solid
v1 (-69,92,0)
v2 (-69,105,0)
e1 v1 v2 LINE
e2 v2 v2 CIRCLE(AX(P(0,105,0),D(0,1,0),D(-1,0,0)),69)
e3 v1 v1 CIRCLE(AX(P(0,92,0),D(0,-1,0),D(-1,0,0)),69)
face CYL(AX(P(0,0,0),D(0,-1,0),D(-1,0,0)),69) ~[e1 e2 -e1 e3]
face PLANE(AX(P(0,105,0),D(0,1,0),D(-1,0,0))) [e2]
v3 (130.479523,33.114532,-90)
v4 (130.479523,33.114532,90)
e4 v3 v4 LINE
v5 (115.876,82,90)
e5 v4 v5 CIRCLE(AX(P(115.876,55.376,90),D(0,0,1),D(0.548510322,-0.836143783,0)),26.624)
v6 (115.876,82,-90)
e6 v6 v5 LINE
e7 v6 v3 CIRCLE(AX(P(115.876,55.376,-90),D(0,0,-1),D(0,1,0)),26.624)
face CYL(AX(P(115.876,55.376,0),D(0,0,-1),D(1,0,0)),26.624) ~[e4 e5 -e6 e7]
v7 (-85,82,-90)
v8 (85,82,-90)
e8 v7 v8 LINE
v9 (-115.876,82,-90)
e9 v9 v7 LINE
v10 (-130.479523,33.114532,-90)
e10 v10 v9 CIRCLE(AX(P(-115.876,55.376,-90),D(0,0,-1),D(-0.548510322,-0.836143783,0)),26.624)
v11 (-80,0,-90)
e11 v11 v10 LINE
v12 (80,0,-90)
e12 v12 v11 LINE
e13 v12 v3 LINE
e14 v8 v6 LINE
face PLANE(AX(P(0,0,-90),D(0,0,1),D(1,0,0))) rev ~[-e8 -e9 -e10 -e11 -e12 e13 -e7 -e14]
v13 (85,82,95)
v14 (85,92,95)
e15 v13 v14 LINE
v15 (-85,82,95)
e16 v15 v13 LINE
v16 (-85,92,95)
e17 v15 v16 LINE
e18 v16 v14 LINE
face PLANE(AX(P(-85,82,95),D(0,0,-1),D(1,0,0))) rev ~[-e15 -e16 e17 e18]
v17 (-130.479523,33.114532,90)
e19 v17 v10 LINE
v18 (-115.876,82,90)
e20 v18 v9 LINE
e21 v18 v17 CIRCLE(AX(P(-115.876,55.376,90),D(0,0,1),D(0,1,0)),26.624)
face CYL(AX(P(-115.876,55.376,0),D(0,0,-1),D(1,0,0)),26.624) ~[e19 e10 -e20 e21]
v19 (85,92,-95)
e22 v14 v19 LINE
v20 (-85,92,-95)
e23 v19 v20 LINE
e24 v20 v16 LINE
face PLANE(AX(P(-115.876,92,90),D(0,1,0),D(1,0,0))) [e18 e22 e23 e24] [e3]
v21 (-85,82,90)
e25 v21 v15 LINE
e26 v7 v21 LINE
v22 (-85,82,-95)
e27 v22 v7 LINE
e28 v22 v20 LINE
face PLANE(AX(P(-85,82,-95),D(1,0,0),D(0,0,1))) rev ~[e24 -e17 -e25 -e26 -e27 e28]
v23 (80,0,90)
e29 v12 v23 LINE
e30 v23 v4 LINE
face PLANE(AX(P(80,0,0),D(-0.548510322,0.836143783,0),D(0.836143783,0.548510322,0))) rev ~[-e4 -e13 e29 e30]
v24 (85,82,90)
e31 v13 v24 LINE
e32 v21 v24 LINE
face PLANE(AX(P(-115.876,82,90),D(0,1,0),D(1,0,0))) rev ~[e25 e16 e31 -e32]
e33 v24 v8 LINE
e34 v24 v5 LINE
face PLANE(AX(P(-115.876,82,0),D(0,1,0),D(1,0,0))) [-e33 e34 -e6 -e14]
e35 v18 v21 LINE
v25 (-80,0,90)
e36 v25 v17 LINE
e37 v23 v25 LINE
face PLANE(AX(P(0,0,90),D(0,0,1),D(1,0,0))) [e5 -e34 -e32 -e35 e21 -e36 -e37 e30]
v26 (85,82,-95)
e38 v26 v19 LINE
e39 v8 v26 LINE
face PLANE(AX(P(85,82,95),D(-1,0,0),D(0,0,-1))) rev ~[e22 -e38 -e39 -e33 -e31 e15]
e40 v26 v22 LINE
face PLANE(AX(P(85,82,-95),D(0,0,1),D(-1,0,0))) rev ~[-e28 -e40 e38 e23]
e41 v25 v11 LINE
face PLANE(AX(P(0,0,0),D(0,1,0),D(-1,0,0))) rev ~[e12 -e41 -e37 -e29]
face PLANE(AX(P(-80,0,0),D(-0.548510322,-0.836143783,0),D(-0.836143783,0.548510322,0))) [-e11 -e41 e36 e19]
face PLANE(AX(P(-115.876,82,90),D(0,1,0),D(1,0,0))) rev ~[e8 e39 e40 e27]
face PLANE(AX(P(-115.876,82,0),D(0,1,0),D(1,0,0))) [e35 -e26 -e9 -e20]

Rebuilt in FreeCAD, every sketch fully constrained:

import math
import FreeCAD as App
import Part
import Sketcher
Q = App.Units.Quantity


def add_polygon(sketch, points):
    """Adds a closed chain of lines whose ends are joined by coincident constraints."""
    first, n = sketch.GeometryCount, len(points)
    for a, b in zip(points, points[1:] + points[:1]):
        sketch.addGeometry(Part.LineSegment(App.Vector(*a, 0), App.Vector(*b, 0)), False)
    for i in range(n):
        sketch.addConstraint(Sketcher.Constraint("Coincident", first + i, 2, first + (i + 1) % n, 1))

doc = App.newDocument("Part")
body = doc.addObject("PartDesign::Body", "Body")

# Sketch on XY plane
sketch1 = doc.addObject("Sketcher::SketchObject", "Sketch")
body.addObject(sketch1)
sketch1.AttachmentSupport = (doc.XY_Plane, [""])
sketch1.MapMode = "FlatFace"
sketch1.addGeometry([
    Part.LineSegment(App.Vector(-80, 0, 0), App.Vector(80, 0, 0)),  # 0
    Part.LineSegment(App.Vector(80, 0, 0), App.Vector(130, 33, 0)),  # 1
    Part.ArcOfCircle(Part.Circle(App.Vector(116, 55, 0), App.Vector(0, 0, 1), 27), math.radians(-57), math.radians(90)),  # 2
    Part.LineSegment(App.Vector(116, 82, 0), App.Vector(-116, 82, 0)),  # 3
    Part.ArcOfCircle(Part.Circle(App.Vector(-116, 55, 0), App.Vector(0, 0, 1), 27), math.radians(90), math.radians(237)),  # 4
    Part.LineSegment(App.Vector(-130, 33, 0), App.Vector(-80, 0, 0)),  # 5
], False)
sketch1.addConstraint([
    Sketcher.Constraint("Coincident", 0, 2, 1, 1),
    Sketcher.Constraint("Tangent", 1, 2, 2, 1),
    Sketcher.Constraint("Tangent", 2, 2, 3, 1),
    Sketcher.Constraint("Tangent", 3, 2, 4, 1),
    Sketcher.Constraint("Tangent", 4, 2, 5, 1),
    Sketcher.Constraint("Coincident", 5, 2, 0, 1),
    Sketcher.Constraint("Horizontal", 0),
    Sketcher.Constraint("Horizontal", 3),
    Sketcher.Constraint("Equal", 2, 4),
    Sketcher.Constraint("Symmetric", 0, 2, 5, 2, -1, 1),
    Sketcher.Constraint("Horizontal", 1, 2, 4, 2),
    Sketcher.Constraint("DistanceX", -1, 1, 0, 2, Q("80 mm")),
    Sketcher.Constraint("DistanceY", -1, 1, 2, 2, Q("82 mm")),
    Sketcher.Constraint("Radius", 2, Q("26.624 mm")),
    Sketcher.Constraint("DistanceX", 3, 2, 3, 1, Q("231.752 mm")),
])
pad1 = doc.addObject("PartDesign::Pad", "Pad")
body.addObject(pad1)
pad1.Profile = sketch1
pad1.Length = 180
pad1.Midplane = True

# Sketch on XZ plane
sketch2 = doc.addObject("Sketcher::SketchObject", "Sketch001")
body.addObject(sketch2)
sketch2.AttachmentSupport = (doc.XZ_Plane, [""])
sketch2.MapMode = "FlatFace"
sketch2.AttachmentOffset = App.Placement(App.Vector(0, 0, -82), App.Rotation())
add_polygon(sketch2, [(-85, -95), (-85, 95), (85, 95), (85, -95)])  # lines 0-3
sketch2.addConstraint([
    Sketcher.Constraint("Vertical", 0),
    Sketcher.Constraint("Horizontal", 1),
    Sketcher.Constraint("Vertical", 2),
    Sketcher.Constraint("Horizontal", 3),
    Sketcher.Constraint("Symmetric", 0, 2, 2, 2, -1, 1),
    Sketcher.Constraint("DistanceX", 1, 1, 1, 2, Q("170 mm")),
    Sketcher.Constraint("DistanceY", 0, 1, 0, 2, Q("190 mm")),
])
pad2 = doc.addObject("PartDesign::Pad", "Pad001")
body.addObject(pad2)
pad2.Profile = sketch2
pad2.Length = 10
pad2.Reversed = True

# Sketch on XZ plane
sketch3 = doc.addObject("Sketcher::SketchObject", "Sketch002")
body.addObject(sketch3)
sketch3.AttachmentSupport = (doc.XZ_Plane, [""])
sketch3.MapMode = "FlatFace"
sketch3.addGeometry(Part.Circle(App.Vector(0, 0, 0), App.Vector(0, 0, 1), 69), False)
sketch3.addConstraint([
    Sketcher.Constraint("Coincident", 0, 3, -1, 1),
    Sketcher.Constraint("Diameter", 0, Q("138 mm")),
])
pad3 = doc.addObject("PartDesign::Pad", "Pad002")
body.addObject(pad3)
pad3.Profile = sketch3
pad3.Length = 105
pad3.Reversed = True

doc.recompute()
